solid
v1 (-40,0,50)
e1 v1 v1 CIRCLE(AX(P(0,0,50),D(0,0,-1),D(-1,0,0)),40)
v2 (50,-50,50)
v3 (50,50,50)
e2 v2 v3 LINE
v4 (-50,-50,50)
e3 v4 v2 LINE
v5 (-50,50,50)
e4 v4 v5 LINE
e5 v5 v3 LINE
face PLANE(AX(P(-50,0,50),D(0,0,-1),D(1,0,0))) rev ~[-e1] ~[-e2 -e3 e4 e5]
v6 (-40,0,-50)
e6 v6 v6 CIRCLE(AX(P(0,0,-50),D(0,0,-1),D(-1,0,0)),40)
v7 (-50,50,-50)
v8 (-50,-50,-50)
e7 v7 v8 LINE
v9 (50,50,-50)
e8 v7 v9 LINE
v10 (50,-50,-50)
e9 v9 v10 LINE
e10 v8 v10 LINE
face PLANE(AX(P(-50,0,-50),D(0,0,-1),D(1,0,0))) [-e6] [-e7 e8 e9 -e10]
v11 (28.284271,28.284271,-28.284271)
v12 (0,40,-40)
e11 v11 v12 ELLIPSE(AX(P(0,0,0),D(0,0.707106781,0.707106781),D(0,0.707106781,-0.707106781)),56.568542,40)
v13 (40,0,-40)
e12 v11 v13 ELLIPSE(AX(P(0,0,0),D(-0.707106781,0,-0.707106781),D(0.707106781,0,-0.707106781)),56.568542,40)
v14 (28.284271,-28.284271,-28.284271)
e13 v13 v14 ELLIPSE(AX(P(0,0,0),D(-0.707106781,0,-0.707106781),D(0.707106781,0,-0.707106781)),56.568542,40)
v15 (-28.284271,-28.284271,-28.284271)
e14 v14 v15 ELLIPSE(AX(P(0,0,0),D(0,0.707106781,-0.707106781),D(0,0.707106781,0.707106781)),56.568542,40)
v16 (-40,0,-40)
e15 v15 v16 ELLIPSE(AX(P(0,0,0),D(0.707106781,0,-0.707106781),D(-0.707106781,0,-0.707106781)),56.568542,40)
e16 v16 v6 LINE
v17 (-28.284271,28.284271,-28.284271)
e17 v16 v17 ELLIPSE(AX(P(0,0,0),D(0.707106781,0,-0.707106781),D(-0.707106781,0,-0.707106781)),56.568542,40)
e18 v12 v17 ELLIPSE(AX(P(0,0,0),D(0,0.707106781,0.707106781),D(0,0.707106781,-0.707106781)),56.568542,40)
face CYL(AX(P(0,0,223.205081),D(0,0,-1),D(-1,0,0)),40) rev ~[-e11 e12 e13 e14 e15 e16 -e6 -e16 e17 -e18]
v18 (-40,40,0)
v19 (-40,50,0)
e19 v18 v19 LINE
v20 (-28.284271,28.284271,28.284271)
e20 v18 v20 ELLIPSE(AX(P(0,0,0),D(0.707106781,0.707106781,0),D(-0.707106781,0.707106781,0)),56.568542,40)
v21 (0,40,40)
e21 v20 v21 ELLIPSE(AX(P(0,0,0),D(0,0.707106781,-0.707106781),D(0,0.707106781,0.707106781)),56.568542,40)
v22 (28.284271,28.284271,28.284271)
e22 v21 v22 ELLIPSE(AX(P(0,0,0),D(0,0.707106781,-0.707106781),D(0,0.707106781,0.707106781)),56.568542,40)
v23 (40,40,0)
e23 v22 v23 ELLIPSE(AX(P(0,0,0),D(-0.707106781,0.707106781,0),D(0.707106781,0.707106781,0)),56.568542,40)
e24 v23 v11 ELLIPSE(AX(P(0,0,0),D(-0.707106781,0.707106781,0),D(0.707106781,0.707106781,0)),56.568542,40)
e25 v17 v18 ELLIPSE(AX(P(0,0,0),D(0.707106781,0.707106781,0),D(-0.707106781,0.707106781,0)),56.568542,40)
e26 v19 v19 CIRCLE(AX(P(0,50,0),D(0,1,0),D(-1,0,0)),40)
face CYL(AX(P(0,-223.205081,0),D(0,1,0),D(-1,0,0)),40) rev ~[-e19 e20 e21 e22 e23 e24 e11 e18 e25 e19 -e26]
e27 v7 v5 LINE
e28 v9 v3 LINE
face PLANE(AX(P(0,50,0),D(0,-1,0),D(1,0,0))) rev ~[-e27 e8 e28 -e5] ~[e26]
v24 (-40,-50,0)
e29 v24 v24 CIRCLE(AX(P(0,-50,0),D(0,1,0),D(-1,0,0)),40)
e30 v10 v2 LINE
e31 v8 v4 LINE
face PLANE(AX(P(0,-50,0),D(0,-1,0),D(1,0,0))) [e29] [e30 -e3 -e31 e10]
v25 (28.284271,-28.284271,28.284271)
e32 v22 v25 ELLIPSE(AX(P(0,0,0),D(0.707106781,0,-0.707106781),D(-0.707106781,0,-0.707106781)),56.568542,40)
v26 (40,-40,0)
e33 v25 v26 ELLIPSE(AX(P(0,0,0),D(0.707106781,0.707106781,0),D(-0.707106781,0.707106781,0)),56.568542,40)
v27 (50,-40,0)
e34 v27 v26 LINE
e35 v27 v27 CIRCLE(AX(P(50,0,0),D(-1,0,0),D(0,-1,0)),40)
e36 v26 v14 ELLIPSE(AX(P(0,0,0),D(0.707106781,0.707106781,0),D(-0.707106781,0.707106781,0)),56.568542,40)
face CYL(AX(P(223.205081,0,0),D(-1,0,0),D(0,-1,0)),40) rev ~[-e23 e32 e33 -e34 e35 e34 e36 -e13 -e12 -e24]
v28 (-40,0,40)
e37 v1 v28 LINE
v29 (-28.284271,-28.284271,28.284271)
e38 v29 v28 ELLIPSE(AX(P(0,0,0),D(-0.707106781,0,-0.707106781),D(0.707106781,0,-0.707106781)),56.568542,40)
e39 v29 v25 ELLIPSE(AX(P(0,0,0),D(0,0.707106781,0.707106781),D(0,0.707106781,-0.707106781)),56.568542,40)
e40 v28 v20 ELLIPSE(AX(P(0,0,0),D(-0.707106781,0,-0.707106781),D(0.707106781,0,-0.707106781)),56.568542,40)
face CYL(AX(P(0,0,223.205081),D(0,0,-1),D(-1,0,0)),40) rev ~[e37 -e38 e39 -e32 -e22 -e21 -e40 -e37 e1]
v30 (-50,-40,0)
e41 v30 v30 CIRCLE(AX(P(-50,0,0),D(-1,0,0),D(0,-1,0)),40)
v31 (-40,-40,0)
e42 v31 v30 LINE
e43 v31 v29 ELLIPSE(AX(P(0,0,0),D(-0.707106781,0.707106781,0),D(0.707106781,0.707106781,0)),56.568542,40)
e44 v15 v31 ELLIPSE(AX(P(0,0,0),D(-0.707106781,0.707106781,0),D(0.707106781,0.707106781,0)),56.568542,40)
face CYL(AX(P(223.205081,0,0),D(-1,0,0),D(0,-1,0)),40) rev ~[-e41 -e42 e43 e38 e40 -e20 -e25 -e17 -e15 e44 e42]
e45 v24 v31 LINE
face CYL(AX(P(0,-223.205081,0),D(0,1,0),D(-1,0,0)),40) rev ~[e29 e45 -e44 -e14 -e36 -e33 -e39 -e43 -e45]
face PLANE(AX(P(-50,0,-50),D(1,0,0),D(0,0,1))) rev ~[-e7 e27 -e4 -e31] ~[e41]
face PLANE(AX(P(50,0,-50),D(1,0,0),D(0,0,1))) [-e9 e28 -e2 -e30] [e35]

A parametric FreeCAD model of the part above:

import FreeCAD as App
import Part
import Sketcher


def add_polygon(sketch, points):
    """Adds a closed chain of lines whose ends are joined by coincident constraints."""
    first, n = sketch.GeometryCount, len(points)
    for a, b in zip(points, points[1:] + points[:1]):
        sketch.addGeometry(Part.LineSegment(App.Vector(*a, 0), App.Vector(*b, 0)), False)
    for i in range(n):
        sketch.addConstraint(Sketcher.Constraint("Coincident", first + i, 2, first + (i + 1) % n, 1))

doc = App.newDocument("Part")
params = doc.addObject("Spreadsheet::Sheet", "Params")
for row, (alias, value) in enumerate([
    ("sketch1_width", "100 mm"),
    ("pad1_length", "100 mm"),
    ("sketch2_diameter", "80 mm"),
    ("hole_diameter", "80 mm"),
    ("sketch3_diameter", "80 mm"),
    ("hole2_diameter", "80 mm"),
    ("sketch4_diameter", "80 mm"),
    ("hole3_diameter", "80 mm"),
], start=1):
    params.set(f"A{row}", alias)
    params.set(f"B{row}", "=" + value)
    params.setAlias(f"B{row}", alias)

body = doc.addObject("PartDesign::Body", "Body")

# Sketch on XZ plane
sketch1 = doc.addObject("Sketcher::SketchObject", "Sketch")
body.addObject(sketch1)
sketch1.AttachmentSupport = (doc.XZ_Plane, [""])
sketch1.MapMode = "FlatFace"
add_polygon(sketch1, [(-50, 50), (-50, -50), (50, -50), (50, 50)])  # lines 0-3
sketch1.addConstraint(Sketcher.Constraint("Vertical", 0))
sketch1.addConstraint(Sketcher.Constraint("Horizontal", 1))
sketch1.addConstraint(Sketcher.Constraint("Vertical", 2))
sketch1.addConstraint(Sketcher.Constraint("Horizontal", 3))
sketch1.addConstraint(Sketcher.Constraint("Symmetric", 0, 2, 2, 2, -1, 1))
sketch1.addConstraint(Sketcher.Constraint("Equal", 3, 0))
sketch1.addConstraint(Sketcher.Constraint("DistanceX", 1, 1, 1, 2, 100.0))
sketch1.setExpression("Constraints[10]", "Params.sketch1_width")
pad1 = doc.addObject("PartDesign::Pad", "Pad")
body.addObject(pad1)
pad1.Profile = sketch1
pad1.setExpression("Length", "Params.pad1_length")
pad1.Midplane = True

# Sketch on XZ plane
sketch2 = doc.addObject("Sketcher::SketchObject", "Sketch001")
body.addObject(sketch2)
sketch2.AttachmentSupport = (doc.XZ_Plane, [""])
sketch2.MapMode = "FlatFace"
sketch2.AttachmentOffset = App.Placement(App.Vector(0, 0, 50), App.Rotation())
sketch2.addGeometry(Part.Circle(App.Vector(0, 0, 0), App.Vector(0, 0, 1), 40), False)
sketch2.addConstraint(Sketcher.Constraint("Coincident", 0, 3, -1, 1))
sketch2.addConstraint(Sketcher.Constraint("Diameter", 0, 80.0))
sketch2.setExpression("Constraints[1]", "Params.sketch2_diameter")
doc.recompute()
hole = doc.addObject("PartDesign::Hole", "Hole")
body.addObject(hole)
hole.Profile = sketch2
hole.ThreadType = "None"
hole.setExpression("Diameter", "Params.hole_diameter")
hole.DepthType = "ThroughAll"

# Sketch on XY plane
sketch3 = doc.addObject("Sketcher::SketchObject", "Sketch002")
body.addObject(sketch3)
sketch3.AttachmentSupport = (doc.XY_Plane, [""])
sketch3.MapMode = "FlatFace"
sketch3.AttachmentOffset = App.Placement(App.Vector(0, 0, 50), App.Rotation())
sketch3.addGeometry(Part.Circle(App.Vector(0, 0, 0), App.Vector(0, 0, 1), 40), False)
sketch3.addConstraint(Sketcher.Constraint("Coincident", 0, 3, -1, 1))
sketch3.addConstraint(Sketcher.Constraint("Diameter", 0, 80.0))
sketch3.setExpression("Constraints[1]", "Params.sketch3_diameter")
doc.recompute()
hole2 = doc.addObject("PartDesign::Hole", "Hole001")
body.addObject(hole2)
hole2.Profile = sketch3
hole2.ThreadType = "None"
hole2.setExpression("Diameter", "Params.hole2_diameter")
hole2.DepthType = "ThroughAll"

# Sketch on YZ plane
sketch4 = doc.addObject("Sketcher::SketchObject", "Sketch003")
body.addObject(sketch4)
sketch4.AttachmentSupport = (doc.YZ_Plane, [""])
sketch4.MapMode = "FlatFace"
sketch4.AttachmentOffset = App.Placement(App.Vector(0, 0, 50), App.Rotation())
sketch4.addGeometry(Part.Circle(App.Vector(0, 0, 0), App.Vector(0, 0, 1), 40), False)
sketch4.addConstraint(Sketcher.Constraint("Coincident", 0, 3, -1, 1))
sketch4.addConstraint(Sketcher.Constraint("Diameter", 0, 80.0))
sketch4.setExpression("Constraints[1]", "Params.sketch4_diameter")
doc.recompute()
hole3 = doc.addObject("PartDesign::Hole", "Hole002")
body.addObject(hole3)
hole3.Profile = sketch4
hole3.ThreadType = "None"
hole3.setExpression("Diameter", "Params.hole3_diameter")
hole3.DepthType = "ThroughAll"

doc.recompute()
